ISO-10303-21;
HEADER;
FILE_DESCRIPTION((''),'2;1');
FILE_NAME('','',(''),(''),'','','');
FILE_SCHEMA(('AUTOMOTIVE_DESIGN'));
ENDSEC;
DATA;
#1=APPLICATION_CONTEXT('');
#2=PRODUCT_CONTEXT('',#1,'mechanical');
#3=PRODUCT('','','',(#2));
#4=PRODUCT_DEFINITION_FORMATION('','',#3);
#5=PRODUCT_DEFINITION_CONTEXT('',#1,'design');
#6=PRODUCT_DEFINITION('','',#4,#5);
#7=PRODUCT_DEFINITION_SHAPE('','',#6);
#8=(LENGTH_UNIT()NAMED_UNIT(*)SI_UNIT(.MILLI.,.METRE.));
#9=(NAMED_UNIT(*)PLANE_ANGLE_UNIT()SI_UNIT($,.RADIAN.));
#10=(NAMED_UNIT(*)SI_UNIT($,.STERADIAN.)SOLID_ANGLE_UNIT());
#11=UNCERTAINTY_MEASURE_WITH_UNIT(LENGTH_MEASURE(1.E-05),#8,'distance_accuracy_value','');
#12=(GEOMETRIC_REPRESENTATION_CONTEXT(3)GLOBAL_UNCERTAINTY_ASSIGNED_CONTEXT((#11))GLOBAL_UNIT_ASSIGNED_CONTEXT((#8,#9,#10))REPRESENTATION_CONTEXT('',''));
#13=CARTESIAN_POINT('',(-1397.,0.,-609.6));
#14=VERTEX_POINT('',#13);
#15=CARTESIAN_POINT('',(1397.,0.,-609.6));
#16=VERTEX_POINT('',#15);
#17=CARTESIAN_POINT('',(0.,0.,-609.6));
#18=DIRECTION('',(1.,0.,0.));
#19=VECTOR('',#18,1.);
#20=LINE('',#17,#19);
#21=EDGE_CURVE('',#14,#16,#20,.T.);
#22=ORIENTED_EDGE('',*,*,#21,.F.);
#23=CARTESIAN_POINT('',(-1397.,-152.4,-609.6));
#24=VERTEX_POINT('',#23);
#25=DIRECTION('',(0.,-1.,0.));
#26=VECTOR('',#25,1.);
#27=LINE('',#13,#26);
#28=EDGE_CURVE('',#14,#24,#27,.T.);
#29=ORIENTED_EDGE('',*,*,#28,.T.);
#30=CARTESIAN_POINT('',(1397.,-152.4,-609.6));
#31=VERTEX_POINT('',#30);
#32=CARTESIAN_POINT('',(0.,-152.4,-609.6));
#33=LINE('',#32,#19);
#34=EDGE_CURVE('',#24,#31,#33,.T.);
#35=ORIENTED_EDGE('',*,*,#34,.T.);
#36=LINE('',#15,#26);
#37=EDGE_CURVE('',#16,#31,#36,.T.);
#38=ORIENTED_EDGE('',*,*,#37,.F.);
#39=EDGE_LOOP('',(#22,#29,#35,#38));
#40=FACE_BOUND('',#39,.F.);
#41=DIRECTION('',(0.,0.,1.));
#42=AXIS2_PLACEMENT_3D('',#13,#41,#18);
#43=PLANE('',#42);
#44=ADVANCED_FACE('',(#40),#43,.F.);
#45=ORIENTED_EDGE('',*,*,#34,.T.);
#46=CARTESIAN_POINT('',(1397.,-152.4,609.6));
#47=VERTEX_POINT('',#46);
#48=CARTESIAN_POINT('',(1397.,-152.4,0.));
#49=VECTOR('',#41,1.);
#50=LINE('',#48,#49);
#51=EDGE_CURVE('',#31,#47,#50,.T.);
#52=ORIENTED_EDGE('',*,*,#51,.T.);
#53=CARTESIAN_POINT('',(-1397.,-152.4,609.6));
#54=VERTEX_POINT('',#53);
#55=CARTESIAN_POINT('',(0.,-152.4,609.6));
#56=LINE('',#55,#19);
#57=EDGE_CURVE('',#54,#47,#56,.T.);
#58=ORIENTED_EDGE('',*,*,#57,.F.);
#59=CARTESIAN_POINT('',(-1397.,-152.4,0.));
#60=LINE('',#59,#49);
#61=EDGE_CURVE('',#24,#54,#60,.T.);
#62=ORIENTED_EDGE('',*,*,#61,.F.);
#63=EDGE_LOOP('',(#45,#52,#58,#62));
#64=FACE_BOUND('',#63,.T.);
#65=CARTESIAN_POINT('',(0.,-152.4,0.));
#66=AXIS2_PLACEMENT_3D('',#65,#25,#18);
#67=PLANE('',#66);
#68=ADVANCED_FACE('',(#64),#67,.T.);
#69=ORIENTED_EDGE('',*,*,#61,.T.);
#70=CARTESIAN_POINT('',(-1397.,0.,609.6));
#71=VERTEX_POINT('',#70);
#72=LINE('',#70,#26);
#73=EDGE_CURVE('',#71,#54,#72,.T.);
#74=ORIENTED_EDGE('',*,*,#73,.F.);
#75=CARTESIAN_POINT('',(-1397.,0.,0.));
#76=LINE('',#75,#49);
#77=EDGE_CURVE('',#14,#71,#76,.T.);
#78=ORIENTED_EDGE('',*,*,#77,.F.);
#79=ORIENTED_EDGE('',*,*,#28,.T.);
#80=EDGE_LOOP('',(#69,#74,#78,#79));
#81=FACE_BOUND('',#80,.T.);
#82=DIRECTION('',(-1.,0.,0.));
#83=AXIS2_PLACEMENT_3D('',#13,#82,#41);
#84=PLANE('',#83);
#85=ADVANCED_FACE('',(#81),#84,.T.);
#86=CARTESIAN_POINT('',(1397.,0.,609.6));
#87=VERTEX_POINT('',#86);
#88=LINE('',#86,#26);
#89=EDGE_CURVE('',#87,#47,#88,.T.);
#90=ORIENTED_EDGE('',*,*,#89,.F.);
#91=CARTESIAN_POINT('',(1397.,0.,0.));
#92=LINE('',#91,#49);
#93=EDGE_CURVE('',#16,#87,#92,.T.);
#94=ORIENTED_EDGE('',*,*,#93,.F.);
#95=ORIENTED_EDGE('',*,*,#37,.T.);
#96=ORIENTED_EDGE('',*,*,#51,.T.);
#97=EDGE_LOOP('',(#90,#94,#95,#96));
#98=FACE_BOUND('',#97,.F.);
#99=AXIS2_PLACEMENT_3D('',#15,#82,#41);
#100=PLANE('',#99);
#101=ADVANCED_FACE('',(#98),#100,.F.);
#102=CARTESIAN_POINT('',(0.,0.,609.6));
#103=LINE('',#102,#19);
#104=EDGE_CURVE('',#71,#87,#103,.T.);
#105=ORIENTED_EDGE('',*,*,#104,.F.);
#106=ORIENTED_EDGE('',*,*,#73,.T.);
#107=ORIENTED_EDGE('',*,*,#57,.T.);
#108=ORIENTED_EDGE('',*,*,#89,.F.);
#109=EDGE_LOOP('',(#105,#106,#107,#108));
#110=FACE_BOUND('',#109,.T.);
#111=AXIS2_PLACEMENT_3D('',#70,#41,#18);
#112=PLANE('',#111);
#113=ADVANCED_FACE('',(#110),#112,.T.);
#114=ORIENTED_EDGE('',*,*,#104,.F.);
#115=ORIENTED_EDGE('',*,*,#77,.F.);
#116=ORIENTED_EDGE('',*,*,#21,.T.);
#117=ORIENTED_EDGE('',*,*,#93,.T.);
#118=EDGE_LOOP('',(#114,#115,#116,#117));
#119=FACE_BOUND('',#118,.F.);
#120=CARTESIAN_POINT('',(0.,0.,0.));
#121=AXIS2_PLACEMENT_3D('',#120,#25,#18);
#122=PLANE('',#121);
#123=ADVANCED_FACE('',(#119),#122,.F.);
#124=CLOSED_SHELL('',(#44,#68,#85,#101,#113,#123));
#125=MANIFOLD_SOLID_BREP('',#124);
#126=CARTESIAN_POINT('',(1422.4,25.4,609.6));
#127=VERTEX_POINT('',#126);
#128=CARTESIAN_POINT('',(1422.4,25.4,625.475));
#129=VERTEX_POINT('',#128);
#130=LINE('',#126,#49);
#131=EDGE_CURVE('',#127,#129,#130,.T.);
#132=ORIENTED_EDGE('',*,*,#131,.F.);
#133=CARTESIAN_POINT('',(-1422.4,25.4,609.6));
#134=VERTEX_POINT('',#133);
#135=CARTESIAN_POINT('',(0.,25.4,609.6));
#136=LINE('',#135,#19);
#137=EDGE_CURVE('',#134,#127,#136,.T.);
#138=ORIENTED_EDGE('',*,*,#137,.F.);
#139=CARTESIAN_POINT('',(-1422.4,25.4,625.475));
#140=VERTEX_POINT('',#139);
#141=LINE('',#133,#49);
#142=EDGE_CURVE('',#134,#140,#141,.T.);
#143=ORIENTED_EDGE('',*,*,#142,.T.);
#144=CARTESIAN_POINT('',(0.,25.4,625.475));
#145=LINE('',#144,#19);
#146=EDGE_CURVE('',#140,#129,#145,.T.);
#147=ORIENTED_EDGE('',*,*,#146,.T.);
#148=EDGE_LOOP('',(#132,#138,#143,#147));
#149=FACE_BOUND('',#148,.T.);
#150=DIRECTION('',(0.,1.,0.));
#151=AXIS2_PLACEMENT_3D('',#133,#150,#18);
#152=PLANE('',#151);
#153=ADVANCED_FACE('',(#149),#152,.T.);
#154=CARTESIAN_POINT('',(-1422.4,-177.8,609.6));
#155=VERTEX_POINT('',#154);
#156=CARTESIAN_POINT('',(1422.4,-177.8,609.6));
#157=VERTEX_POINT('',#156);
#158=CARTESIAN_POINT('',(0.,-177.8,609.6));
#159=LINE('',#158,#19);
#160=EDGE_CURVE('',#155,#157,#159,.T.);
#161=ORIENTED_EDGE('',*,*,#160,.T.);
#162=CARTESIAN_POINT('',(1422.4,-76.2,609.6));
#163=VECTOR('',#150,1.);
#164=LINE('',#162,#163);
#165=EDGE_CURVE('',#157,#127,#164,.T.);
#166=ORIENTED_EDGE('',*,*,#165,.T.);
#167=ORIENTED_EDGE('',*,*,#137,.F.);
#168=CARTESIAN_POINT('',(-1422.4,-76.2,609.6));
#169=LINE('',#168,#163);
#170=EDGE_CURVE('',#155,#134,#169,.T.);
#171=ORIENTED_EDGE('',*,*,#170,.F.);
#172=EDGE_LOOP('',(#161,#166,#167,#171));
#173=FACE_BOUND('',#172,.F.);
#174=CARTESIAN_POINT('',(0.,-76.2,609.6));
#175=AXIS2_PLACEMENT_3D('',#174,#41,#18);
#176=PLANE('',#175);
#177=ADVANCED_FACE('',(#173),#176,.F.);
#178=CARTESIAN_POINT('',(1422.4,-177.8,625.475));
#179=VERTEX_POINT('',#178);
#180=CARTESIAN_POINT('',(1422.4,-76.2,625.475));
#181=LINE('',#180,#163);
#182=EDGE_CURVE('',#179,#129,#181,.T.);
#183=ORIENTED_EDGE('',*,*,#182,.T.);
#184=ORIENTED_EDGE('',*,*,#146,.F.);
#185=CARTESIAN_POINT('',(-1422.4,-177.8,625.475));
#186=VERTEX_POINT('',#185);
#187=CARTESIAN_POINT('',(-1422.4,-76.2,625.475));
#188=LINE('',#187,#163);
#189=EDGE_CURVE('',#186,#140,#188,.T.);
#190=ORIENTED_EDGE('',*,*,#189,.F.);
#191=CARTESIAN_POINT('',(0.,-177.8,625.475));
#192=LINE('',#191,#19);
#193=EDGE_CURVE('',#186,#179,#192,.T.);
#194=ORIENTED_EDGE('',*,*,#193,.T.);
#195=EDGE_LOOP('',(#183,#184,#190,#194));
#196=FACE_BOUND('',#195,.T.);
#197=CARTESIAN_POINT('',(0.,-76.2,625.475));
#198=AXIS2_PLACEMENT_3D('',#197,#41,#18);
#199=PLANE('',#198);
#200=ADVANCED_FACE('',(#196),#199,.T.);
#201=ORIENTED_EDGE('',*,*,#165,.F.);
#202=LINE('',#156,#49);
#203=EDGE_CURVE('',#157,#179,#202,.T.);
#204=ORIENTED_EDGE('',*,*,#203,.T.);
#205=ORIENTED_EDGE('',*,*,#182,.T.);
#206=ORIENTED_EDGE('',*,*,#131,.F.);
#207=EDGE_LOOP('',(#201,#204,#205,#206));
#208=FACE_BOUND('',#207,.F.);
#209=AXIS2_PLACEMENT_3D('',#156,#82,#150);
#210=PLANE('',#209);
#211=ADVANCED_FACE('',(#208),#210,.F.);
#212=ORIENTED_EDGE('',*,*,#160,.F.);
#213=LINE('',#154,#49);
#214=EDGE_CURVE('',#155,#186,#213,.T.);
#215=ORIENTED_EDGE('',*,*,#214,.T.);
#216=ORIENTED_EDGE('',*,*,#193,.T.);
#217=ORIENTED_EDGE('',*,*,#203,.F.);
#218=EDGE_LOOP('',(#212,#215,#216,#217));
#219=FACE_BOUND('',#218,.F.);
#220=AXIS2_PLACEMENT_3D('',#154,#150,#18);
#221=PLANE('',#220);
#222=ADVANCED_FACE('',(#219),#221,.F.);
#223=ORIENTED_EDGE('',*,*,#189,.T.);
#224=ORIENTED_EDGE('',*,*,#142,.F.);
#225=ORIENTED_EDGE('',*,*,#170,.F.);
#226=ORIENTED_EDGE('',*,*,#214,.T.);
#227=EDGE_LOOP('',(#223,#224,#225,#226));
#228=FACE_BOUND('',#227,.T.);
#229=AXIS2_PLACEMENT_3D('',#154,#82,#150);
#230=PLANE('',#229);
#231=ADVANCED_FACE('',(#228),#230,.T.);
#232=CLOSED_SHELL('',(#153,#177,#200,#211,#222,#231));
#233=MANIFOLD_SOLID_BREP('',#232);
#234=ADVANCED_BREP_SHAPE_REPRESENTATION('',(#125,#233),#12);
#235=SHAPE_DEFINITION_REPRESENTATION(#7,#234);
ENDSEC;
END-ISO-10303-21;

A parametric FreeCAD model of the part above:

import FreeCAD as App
import Part
import Sketcher
from FreeCAD import Vector
Q = App.Units.Quantity

doc = App.newDocument("Part")
body = doc.addObject("PartDesign::Body", "Body")

# Sketch on XZ plane
sketch1 = body.newObject("Sketcher::SketchObject", "Sketch")
sketch1.AttachmentSupport = (doc.getObject("XZ_Plane"), [""])
sketch1.MapMode = "FlatFace"
sketch1.addGeometry([
    Part.LineSegment(Vector(-1397, 610, 0), Vector(-1397, -610, 0)),
    Part.LineSegment(Vector(-1397, -610, 0), Vector(1397, -610, 0)),
    Part.LineSegment(Vector(1397, -610, 0), Vector(1397, 610, 0)),
    Part.LineSegment(Vector(1397, 610, 0), Vector(-1397, 610, 0)),
], False)
sketch1.addConstraint([
    Sketcher.Constraint("Coincident", 0, 2, 1, 1),
    Sketcher.Constraint("Coincident", 1, 2, 2, 1),
    Sketcher.Constraint("Coincident", 2, 2, 3, 1),
    Sketcher.Constraint("Coincident", 3, 2, 0, 1),
    Sketcher.Constraint("Vertical", 0),
    Sketcher.Constraint("Horizontal", 1),
    Sketcher.Constraint("Vertical", 2),
    Sketcher.Constraint("Horizontal", 3),
    Sketcher.Constraint("Symmetric", 0, 2, 2, 2, -1, 1),
    Sketcher.Constraint("DistanceX", 1, 1, 1, 2, Q("110 in")),
    Sketcher.Constraint("DistanceY", 0, 2, 0, 1, Q("48 in")),
])
pad1 = body.newObject("PartDesign::Pad", "Pad")
pad1.Profile = sketch1
pad1.Length = Q("6 in")
body2 = doc.addObject("PartDesign::Body", "Body001")

# Sketch on XY plane
sketch2 = body2.newObject("Sketcher::SketchObject", "Sketch001")
sketch2.AttachmentSupport = (doc.getObject("XY_Plane001"), [""])
sketch2.MapMode = "FlatFace"
sketch2.AttachmentOffset = App.Placement(Vector(0, 0, 24 * 25.4), App.Rotation())
sketch2.addGeometry([
    Part.LineSegment(Vector(-1422, 25, 0), Vector(-1422, -178, 0)),
    Part.LineSegment(Vector(-1422, -178, 0), Vector(1422, -178, 0)),
    Part.LineSegment(Vector(1422, -178, 0), Vector(1422, 25, 0)),
    Part.LineSegment(Vector(1422, 25, 0), Vector(-1422, 25, 0)),
], False)
sketch2.addConstraint([
    Sketcher.Constraint("Coincident", 0, 2, 1, 1),
    Sketcher.Constraint("Coincident", 1, 2, 2, 1),
    Sketcher.Constraint("Coincident", 2, 2, 3, 1),
    Sketcher.Constraint("Coincident", 3, 2, 0, 1),
    Sketcher.Constraint("Vertical", 0),
    Sketcher.Constraint("Horizontal", 1),
    Sketcher.Constraint("Vertical", 2),
    Sketcher.Constraint("Horizontal", 3),
    Sketcher.Constraint("DistanceX", 1, 1, 1, 2, Q("112 in")),
    Sketcher.Constraint("DistanceY", 0, 2, 0, 1, Q("8 in")),
    Sketcher.Constraint("DistanceX", 0, 2, -1, 1, Q("56 in")),
    Sketcher.Constraint("DistanceY", 0, 2, -1, 1, Q("7 in")),
])
pad2 = body2.newObject("PartDesign::Pad", "Pad001")
pad2.Profile = sketch2
pad2.Length = Q("0.625 in")

doc.recompute()
